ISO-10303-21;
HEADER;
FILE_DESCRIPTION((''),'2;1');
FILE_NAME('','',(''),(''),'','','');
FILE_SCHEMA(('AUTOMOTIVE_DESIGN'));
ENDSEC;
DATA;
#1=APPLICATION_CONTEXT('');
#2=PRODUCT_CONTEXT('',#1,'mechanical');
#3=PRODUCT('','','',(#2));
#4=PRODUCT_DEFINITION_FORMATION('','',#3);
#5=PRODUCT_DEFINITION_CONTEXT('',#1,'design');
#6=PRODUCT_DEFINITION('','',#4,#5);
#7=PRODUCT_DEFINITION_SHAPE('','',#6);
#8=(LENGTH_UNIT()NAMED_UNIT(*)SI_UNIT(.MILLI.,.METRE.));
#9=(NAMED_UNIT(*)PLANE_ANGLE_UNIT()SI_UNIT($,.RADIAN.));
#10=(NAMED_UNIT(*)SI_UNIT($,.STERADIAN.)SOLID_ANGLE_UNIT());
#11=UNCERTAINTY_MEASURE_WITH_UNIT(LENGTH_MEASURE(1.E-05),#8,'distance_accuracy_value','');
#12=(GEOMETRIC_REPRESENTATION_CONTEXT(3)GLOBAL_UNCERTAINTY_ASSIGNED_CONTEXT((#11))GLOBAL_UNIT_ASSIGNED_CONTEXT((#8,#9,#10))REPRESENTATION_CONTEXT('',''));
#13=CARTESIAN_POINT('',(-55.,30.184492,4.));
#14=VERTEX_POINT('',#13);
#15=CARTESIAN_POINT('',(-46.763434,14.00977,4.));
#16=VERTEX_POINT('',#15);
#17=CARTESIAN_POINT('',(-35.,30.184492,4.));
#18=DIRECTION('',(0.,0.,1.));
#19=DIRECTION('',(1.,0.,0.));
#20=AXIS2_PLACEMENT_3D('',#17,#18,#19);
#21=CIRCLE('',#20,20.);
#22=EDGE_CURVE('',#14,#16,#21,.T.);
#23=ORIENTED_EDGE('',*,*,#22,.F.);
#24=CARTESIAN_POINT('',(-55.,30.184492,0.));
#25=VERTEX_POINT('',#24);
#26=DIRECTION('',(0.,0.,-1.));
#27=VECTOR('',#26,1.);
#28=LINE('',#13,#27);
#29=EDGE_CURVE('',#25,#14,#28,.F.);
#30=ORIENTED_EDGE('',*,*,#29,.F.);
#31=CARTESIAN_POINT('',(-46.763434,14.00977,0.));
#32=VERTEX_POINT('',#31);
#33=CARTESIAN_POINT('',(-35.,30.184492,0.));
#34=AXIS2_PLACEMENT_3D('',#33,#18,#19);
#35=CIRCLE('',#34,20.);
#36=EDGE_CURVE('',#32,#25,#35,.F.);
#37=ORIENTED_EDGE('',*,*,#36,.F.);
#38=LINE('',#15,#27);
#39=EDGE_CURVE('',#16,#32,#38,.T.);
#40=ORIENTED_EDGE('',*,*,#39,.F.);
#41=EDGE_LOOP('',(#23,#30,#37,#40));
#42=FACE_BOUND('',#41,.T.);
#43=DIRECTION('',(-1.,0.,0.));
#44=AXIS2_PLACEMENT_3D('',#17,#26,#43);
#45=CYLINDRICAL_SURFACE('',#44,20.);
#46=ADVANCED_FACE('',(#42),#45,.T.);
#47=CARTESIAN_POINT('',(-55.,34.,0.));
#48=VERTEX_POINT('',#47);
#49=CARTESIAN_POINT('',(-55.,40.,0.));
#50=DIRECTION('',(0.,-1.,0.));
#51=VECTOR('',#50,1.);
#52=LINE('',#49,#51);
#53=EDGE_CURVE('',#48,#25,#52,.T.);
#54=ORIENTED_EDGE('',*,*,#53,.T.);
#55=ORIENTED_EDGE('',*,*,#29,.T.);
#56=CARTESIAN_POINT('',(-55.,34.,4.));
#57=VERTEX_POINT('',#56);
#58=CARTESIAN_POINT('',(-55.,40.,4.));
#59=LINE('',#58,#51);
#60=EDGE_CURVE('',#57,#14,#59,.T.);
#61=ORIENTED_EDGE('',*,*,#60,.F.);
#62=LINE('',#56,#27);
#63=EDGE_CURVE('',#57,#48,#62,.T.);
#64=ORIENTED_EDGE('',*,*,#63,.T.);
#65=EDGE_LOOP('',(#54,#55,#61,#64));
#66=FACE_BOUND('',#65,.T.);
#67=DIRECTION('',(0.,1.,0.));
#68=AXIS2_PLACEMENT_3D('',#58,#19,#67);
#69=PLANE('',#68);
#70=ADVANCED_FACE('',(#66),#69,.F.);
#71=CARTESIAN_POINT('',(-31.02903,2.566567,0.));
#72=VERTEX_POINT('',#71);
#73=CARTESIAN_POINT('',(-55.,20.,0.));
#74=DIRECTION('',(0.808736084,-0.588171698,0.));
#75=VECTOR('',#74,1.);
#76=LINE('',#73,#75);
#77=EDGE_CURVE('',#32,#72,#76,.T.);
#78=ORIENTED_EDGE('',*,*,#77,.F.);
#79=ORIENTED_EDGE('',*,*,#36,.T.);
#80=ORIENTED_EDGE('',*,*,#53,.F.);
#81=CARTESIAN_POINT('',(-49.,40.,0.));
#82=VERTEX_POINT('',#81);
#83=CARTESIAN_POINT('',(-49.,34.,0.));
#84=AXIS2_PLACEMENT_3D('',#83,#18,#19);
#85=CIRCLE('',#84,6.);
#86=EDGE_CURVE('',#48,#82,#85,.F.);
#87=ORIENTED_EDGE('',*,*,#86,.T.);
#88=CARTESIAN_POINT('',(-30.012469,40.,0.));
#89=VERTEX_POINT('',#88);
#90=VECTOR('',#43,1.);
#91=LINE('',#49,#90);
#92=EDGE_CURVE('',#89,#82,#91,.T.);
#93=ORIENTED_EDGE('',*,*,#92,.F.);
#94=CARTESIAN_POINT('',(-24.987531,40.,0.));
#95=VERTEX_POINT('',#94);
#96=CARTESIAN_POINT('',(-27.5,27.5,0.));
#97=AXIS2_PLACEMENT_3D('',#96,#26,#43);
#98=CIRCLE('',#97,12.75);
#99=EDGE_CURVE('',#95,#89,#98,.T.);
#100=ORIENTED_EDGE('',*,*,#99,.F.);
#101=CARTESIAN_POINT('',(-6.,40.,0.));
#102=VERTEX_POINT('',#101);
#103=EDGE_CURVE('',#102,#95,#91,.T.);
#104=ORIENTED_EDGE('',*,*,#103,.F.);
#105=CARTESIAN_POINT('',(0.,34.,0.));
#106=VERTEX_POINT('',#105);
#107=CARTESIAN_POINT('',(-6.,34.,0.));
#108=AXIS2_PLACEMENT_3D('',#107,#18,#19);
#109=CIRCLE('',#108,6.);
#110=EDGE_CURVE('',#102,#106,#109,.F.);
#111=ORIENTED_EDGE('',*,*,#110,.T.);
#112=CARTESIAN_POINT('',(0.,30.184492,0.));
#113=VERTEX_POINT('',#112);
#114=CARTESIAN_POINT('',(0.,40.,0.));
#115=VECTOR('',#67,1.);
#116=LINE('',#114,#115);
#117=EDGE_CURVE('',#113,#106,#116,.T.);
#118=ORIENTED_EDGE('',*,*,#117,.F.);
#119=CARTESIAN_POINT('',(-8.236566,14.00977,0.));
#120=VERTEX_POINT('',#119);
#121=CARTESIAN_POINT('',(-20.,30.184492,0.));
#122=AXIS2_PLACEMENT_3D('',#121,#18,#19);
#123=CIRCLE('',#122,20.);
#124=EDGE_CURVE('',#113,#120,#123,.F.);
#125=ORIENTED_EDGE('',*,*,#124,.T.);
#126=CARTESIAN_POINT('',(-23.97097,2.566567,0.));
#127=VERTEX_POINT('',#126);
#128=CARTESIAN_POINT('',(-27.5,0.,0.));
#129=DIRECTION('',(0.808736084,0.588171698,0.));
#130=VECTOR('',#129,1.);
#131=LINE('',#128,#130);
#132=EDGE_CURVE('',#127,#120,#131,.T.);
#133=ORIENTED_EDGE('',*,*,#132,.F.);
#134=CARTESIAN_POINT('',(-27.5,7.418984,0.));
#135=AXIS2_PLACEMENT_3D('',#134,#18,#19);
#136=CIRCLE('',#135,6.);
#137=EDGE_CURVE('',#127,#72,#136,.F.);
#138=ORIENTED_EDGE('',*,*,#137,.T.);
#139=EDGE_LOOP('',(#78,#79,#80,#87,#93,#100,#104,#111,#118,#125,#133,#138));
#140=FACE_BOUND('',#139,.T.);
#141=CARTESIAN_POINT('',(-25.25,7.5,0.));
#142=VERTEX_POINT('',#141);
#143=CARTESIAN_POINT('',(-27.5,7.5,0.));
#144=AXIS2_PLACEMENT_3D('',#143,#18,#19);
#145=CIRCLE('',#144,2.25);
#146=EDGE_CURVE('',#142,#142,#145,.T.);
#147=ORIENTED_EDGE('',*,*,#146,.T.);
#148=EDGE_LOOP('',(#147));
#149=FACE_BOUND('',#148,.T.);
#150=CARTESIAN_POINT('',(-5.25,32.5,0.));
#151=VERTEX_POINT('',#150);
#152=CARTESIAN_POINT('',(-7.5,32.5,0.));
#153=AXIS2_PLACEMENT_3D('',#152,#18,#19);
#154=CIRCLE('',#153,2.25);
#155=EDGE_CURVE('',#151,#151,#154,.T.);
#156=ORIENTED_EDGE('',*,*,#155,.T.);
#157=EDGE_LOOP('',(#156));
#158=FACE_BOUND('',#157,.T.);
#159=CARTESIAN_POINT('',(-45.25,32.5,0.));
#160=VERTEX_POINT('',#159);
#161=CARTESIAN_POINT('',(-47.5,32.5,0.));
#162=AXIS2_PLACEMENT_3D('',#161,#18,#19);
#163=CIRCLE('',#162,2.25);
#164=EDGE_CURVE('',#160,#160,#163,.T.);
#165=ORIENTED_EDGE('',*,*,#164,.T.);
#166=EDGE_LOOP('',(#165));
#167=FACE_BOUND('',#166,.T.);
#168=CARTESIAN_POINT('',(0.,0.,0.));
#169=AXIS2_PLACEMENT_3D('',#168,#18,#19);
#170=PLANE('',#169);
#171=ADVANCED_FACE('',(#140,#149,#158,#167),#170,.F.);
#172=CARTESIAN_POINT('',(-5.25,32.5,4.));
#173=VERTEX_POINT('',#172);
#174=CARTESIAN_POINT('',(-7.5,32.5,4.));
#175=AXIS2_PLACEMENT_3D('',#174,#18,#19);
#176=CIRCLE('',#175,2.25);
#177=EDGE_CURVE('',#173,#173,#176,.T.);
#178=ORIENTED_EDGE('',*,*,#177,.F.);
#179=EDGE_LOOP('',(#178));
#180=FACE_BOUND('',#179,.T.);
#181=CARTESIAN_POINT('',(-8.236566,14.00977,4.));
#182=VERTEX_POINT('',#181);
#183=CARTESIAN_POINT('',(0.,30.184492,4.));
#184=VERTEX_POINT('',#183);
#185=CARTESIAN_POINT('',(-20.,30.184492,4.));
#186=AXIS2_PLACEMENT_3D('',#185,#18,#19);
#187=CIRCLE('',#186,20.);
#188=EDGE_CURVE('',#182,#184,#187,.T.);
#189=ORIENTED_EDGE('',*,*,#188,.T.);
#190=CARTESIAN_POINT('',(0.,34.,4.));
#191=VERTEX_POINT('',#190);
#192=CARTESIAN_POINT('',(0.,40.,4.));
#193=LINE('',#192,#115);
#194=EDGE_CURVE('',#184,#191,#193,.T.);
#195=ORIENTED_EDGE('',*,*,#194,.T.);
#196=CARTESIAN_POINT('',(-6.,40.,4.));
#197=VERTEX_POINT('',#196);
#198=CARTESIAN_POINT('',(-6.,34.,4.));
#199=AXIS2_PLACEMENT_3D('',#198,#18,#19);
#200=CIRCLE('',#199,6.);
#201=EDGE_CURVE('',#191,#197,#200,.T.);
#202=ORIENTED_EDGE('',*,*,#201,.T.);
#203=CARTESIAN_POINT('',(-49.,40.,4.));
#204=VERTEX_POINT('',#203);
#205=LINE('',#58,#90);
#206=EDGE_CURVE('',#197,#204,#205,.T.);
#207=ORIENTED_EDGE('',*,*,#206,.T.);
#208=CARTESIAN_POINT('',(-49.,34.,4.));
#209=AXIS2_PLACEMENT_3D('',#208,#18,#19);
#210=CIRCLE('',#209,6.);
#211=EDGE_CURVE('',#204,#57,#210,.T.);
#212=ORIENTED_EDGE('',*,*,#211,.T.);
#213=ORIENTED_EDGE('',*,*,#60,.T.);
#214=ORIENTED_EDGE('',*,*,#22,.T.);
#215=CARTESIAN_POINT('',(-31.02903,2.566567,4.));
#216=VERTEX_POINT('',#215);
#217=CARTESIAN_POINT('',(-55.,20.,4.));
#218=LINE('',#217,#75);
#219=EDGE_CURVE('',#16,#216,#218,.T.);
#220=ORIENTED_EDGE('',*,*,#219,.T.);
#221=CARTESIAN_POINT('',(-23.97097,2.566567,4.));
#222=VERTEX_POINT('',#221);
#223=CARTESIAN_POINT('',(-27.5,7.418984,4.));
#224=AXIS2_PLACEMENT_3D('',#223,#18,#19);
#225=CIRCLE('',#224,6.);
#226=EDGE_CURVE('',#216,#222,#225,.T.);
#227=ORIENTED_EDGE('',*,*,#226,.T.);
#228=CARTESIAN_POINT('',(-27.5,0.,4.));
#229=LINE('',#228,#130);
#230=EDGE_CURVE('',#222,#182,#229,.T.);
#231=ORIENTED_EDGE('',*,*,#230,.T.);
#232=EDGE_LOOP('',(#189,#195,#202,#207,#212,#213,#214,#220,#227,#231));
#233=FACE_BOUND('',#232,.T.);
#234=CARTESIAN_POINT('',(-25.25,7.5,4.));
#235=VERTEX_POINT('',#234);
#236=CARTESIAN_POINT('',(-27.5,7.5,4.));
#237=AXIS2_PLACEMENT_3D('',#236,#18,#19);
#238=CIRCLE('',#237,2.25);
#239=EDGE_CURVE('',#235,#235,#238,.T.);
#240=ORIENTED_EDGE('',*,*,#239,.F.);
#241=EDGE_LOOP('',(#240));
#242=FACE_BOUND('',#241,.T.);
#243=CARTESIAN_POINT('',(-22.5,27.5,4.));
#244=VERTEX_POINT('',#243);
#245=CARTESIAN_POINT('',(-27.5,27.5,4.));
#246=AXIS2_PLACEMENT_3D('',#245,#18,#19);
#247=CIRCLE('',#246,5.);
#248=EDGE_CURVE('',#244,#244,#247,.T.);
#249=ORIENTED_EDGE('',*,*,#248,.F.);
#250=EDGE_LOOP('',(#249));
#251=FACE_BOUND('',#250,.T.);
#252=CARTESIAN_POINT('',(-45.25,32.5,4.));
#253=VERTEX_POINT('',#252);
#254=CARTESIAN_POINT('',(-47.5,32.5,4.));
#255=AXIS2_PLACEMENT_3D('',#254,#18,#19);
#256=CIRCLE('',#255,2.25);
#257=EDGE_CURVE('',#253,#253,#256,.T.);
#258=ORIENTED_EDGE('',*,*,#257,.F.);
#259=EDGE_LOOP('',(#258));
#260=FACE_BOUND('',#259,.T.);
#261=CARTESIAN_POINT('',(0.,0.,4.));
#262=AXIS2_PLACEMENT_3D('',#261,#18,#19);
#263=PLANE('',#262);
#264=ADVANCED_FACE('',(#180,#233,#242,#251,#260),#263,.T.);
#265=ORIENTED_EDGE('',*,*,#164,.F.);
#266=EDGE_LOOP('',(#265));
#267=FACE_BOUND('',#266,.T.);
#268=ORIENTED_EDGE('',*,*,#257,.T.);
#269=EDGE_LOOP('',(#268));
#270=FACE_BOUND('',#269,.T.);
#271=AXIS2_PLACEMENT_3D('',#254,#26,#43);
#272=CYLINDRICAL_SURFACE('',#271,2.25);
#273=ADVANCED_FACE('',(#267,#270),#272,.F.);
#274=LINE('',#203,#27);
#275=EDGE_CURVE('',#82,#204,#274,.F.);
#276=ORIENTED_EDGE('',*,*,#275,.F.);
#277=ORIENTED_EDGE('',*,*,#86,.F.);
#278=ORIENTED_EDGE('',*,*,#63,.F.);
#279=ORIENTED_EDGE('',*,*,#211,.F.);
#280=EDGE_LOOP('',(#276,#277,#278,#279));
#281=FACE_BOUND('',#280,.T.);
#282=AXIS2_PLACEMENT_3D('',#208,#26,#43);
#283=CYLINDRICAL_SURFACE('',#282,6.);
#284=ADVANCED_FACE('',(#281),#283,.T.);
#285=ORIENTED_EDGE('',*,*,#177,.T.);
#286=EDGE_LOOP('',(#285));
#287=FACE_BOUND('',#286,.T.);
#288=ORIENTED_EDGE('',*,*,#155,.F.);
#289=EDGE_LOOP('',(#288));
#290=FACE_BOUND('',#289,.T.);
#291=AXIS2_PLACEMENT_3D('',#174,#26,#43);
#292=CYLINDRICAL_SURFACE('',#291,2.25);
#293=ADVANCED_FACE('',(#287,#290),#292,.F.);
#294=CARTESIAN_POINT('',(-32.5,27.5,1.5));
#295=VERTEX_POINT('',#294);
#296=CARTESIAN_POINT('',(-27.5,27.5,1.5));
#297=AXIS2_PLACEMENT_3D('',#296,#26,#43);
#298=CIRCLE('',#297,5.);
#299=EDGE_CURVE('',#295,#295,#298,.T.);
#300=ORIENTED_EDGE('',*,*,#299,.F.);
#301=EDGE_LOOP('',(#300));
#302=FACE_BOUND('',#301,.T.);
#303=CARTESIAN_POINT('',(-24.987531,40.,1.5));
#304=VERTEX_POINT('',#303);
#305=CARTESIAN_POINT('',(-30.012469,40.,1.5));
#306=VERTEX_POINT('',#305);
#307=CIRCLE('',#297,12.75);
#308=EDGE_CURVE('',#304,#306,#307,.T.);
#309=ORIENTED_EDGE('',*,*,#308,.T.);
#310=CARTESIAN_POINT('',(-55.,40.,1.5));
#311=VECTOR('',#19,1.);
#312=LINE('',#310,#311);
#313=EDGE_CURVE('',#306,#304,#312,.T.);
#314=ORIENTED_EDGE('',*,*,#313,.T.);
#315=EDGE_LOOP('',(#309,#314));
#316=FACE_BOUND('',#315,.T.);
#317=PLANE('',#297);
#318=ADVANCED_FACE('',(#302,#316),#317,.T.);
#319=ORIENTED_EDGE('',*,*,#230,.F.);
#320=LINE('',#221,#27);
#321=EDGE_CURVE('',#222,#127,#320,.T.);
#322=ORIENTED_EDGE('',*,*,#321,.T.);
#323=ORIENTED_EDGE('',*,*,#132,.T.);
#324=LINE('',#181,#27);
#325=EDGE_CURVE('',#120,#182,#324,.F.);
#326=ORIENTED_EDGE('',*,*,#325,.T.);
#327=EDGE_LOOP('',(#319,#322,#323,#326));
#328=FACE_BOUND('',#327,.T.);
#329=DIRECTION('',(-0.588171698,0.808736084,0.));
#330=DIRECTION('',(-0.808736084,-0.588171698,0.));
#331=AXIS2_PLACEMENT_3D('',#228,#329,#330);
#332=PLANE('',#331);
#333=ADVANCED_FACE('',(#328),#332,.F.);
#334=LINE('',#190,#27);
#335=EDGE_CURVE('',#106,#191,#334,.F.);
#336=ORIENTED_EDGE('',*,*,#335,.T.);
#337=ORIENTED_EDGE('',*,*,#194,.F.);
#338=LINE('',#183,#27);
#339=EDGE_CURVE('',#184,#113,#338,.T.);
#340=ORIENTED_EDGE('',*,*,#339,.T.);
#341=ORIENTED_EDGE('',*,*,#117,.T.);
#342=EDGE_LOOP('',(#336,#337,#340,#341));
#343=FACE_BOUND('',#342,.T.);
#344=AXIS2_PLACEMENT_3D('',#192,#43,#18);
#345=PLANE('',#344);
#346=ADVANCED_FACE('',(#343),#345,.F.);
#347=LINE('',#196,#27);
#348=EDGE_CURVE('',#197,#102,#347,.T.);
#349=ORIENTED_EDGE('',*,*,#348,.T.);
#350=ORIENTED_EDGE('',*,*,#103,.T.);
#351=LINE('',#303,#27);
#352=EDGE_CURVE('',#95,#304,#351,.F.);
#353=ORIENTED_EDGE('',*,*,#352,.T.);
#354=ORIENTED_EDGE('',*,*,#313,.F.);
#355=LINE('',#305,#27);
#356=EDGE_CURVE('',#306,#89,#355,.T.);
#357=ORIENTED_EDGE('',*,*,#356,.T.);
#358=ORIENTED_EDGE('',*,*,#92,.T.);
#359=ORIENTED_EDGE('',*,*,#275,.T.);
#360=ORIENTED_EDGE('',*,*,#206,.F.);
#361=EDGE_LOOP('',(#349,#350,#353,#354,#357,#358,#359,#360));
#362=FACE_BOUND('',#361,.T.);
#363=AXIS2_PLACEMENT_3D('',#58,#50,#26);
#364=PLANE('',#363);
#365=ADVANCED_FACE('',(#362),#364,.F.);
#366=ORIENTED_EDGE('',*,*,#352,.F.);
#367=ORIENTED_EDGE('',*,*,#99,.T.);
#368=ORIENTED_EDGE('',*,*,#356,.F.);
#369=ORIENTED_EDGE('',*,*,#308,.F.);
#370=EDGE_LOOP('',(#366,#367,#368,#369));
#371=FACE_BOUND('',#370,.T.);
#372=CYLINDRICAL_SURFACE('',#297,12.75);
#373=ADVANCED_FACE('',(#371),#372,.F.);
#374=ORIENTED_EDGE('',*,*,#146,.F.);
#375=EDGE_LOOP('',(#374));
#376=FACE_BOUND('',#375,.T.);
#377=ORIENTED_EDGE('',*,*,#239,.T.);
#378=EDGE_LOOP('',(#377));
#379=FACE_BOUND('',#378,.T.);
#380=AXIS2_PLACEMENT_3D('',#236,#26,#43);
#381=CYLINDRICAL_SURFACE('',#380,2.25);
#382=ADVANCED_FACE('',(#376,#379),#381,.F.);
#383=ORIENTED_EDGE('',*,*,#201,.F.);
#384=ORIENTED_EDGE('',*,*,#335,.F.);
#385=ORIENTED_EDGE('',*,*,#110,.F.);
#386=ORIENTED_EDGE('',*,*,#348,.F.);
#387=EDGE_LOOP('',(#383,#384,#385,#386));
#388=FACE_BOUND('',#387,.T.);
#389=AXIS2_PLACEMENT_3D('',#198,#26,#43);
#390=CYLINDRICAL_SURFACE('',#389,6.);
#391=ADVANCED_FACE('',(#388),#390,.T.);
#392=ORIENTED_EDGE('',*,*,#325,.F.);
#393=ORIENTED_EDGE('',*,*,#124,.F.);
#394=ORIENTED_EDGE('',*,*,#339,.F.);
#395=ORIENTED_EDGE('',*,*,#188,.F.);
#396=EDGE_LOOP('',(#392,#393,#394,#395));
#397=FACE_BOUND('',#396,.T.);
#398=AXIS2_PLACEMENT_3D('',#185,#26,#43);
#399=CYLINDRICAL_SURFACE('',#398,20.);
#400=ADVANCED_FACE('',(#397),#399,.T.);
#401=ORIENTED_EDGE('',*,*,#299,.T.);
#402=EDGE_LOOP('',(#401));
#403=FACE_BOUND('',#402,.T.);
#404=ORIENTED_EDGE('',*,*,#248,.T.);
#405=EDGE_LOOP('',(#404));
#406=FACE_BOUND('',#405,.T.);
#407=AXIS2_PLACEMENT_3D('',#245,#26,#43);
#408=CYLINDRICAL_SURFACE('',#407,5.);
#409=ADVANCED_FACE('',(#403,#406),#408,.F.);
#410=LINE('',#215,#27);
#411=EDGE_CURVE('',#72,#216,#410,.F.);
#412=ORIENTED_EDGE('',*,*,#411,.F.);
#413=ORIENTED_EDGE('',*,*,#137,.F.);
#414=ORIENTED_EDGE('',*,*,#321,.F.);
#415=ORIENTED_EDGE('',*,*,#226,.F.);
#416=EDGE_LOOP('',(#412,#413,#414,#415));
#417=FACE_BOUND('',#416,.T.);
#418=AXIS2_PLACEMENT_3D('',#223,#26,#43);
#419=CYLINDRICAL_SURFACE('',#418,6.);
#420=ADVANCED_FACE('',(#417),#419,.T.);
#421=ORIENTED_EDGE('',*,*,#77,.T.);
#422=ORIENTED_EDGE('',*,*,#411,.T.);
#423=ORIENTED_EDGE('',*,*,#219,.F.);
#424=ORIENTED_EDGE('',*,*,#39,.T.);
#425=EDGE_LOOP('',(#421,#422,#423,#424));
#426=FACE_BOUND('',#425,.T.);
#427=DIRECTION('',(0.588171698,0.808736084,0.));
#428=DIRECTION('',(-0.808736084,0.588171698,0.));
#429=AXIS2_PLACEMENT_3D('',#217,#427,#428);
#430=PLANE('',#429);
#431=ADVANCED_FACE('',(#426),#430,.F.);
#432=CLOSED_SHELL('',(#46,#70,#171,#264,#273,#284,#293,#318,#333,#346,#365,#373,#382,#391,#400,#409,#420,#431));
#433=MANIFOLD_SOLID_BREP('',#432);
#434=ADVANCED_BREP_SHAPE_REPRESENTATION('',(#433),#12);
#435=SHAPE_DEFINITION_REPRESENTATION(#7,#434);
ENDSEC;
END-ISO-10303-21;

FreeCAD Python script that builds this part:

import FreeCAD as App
import Part
import Sketcher


def edges_at(feature, points):
    """Names of the edges that pass closest to the given points."""
    edges = feature.Shape.Edges
    near = lambda p: min(range(len(edges)), key=lambda i: edges[i].distToShape(Part.Vertex(*p))[0])
    return sorted({f"Edge{near(p) + 1}" for p in points})


def add_polygon(sketch, points):
    """Adds a closed chain of lines whose ends are joined by coincident constraints."""
    first, n = sketch.GeometryCount, len(points)
    for a, b in zip(points, points[1:] + points[:1]):
        sketch.addGeometry(Part.LineSegment(App.Vector(*a, 0), App.Vector(*b, 0)), False)
    for i in range(n):
        sketch.addConstraint(Sketcher.Constraint("Coincident", first + i, 2, first + (i + 1) % n, 1))

doc = App.newDocument("Part")
body = doc.addObject("PartDesign::Body", "Body")

# Sketch on XY plane
sketch1 = body.newObject("Sketcher::SketchObject", "Sketch")
sketch1.AttachmentSupport = (doc.getObject("XY_Plane"), [""])
sketch1.MapMode = "FlatFace"
add_polygon(sketch1, [(-55, 20), (-27.5, 0), (0, 20), (0, 40), (-55, 40)])  # lines 0-4
sketch1.addGeometry(Part.Circle(App.Vector(-27.5, 7.5, 0), App.Vector(0, 0, 1), 2.25), False)  # 5
sketch1.addGeometry(Part.Circle(App.Vector(-47.5, 32.5, 0), App.Vector(0, 0, 1), 2.25), False)  # 6
sketch1.addGeometry(Part.Circle(App.Vector(-27.5, 27.5, 0), App.Vector(0, 0, 1), 5), False)  # 7
sketch1.addGeometry(Part.Circle(App.Vector(-7.5, 32.5, 0), App.Vector(0, 0, 1), 2.25), False)  # 8
sketch1.addConstraint([
    Sketcher.Constraint("Vertical", 2),
    Sketcher.Constraint("Horizontal", 3),
    Sketcher.Constraint("Vertical", 4),
    Sketcher.Constraint("Equal", 5, 6),
    Sketcher.Constraint("Equal", 6, 8),
    Sketcher.Constraint("PointOnObject", 0, 2, -1),
    Sketcher.Constraint("PointOnObject", 1, 2, -2),
    Sketcher.Constraint("Horizontal", 6, 3, 8, 3),
    Sketcher.Constraint("Horizontal", 1, 2, 4, 2),
    Sketcher.Constraint("Vertical", 5, 3, 7, 3),
    Sketcher.Constraint("Vertical", 7, 3, 0, 2),
    Sketcher.Constraint("Equal", 0, 1),
    Sketcher.Constraint("Diameter", 7, 10.0),
    Sketcher.Constraint("Diameter", 5, 4.5),
    Sketcher.Constraint("DistanceX", 3, 2, 3, 1, 55.0),
    Sketcher.Constraint("DistanceY", 2, 1, 2, 2, 20.0),
    Sketcher.Constraint("DistanceY", -1, 1, 1, 2, 20.0),
    Sketcher.Constraint("DistanceX", 6, 3, 5, 3, 20.0),
    Sketcher.Constraint("DistanceY", 5, 3, 6, 3, 25.0),
    Sketcher.Constraint("DistanceY", 5, 3, 7, 3, 20.0),
    Sketcher.Constraint("DistanceX", 7, 3, 8, 3, 20.0),
    Sketcher.Constraint("DistanceY", -1, 1, 5, 3, 7.5),
])
pad1 = body.newObject("PartDesign::Pad", "Pad")
pad1.Profile = sketch1
pad1.Length = 4
doc.recompute()

fillet = body.newObject("PartDesign::Fillet", "Fillet")
fillet.Base = (pad1, edges_at(pad1, [(-55, 40, 2), (0, 40, 2), (-27.5, 0, 2)]))
fillet.Radius = 6
doc.recompute()

fillet2 = body.newObject("PartDesign::Fillet", "Fillet001")
fillet2.Base = (fillet, edges_at(fillet, [(0, 20, 2), (-55, 20, 2)]))
fillet2.Radius = 20

# Sketch on XY plane
sketch2 = body.newObject("Sketcher::SketchObject", "Sketch001")
sketch2.AttachmentSupport = (doc.getObject("XY_Plane"), [""])
sketch2.MapMode = "FlatFace"
sketch2.addGeometry(Part.Circle(App.Vector(-27.5, 27.5, 0), App.Vector(0, 0, 1), 12.75), False)
sketch2.addConstraint([
    Sketcher.Constraint("Diameter", 0, 25.5),
    Sketcher.Constraint("DistanceX", 0, 3, -1, 1, 27.5),
    Sketcher.Constraint("DistanceY", -1, 1, 0, 3, 27.5),
])
pocket1 = body.newObject("PartDesign::Pocket", "Pocket")
pocket1.Profile = sketch2
pocket1.Length = 1.5
pocket1.Reversed = True

doc.recompute()
